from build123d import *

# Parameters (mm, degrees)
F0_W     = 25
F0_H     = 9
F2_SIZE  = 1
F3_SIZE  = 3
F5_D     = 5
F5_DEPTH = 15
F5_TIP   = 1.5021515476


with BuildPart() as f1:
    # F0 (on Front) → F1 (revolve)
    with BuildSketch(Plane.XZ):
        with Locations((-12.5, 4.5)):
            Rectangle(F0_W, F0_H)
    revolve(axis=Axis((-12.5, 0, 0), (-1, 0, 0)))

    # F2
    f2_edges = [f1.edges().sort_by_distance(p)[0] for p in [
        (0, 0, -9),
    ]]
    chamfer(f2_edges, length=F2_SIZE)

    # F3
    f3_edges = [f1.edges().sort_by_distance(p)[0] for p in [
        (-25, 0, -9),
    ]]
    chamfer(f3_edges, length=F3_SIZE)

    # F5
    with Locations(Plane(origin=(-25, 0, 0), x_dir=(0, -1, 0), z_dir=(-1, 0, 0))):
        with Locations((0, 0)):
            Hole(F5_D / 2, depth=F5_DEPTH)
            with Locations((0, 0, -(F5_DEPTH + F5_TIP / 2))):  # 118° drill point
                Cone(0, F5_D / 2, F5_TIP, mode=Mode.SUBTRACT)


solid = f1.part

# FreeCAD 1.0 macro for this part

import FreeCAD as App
import Part
import Sketcher
Q = App.Units.Quantity


def edges_at(feature, points):
    """Names of the edges that pass closest to the given points."""
    edges = feature.Shape.Edges
    near = lambda p: min(range(len(edges)), key=lambda i: edges[i].distToShape(Part.Vertex(*p))[0])
    return sorted({f"Edge{near(p) + 1}" for p in points})


def add_polygon(sketch, points):
    """Adds a closed chain of lines whose ends are joined by coincident constraints."""
    first, n = sketch.GeometryCount, len(points)
    for a, b in zip(points, points[1:] + points[:1]):
        sketch.addGeometry(Part.LineSegment(App.Vector(*a, 0), App.Vector(*b, 0)), False)
    for i in range(n):
        sketch.addConstraint(Sketcher.Constraint("Coincident", first + i, 2, first + (i + 1) % n, 1))

doc = App.newDocument("Part")
body = doc.addObject("PartDesign::Body", "Body")

# Sketch on XZ plane
sketch1 = doc.addObject("Sketcher::SketchObject", "Sketch")
body.addObject(sketch1)
sketch1.AttachmentSupport = (doc.XZ_Plane, [""])
sketch1.MapMode = "FlatFace"
add_polygon(sketch1, [(-25, 9), (-25, 0), (0, 0), (0, 9)])  # lines 0-3
sketch1.addConstraint([
    Sketcher.Constraint("Vertical", 0),
    Sketcher.Constraint("Horizontal", 1),
    Sketcher.Constraint("Vertical", 2),
    Sketcher.Constraint("Horizontal", 3),
    Sketcher.Constraint("Coincident", 1, 2, -1, 1),
    Sketcher.Constraint("DistanceX", 1, 1, 1, 2, Q("25 mm")),
    Sketcher.Constraint("DistanceY", 0, 2, 0, 1, Q("9 mm")),
])
revolution = doc.addObject("PartDesign::Revolution", "Revolution")
body.addObject(revolution)
revolution.Profile = sketch1
revolution.ReferenceAxis = (sketch1, ["H_Axis"])
revolution.Angle = 360
doc.recompute()

chamfer = doc.addObject("PartDesign::Chamfer", "Chamfer")
body.addObject(chamfer)
chamfer.Base = (revolution, edges_at(revolution, [(0, 0, -9)]))
chamfer.Size = 1
doc.recompute()

chamfer2 = doc.addObject("PartDesign::Chamfer", "Chamfer001")
body.addObject(chamfer2)
chamfer2.Base = (chamfer, edges_at(chamfer, [(-25, 0, -9)]))
chamfer2.Size = 3

# Sketch on YZ plane
sketch2 = doc.addObject("Sketcher::SketchObject", "Sketch001")
body.addObject(sketch2)
sketch2.AttachmentSupport = (doc.YZ_Plane, [""])
sketch2.MapMode = "FlatFace"
sketch2.AttachmentOffset = App.Placement(App.Vector(0, 0, -25), App.Rotation())
sketch2.addGeometry(Part.Circle(App.Vector(0, 0, 0), App.Vector(0, 0, 1), 2.5), False)
sketch2.addConstraint([
    Sketcher.Constraint("Coincident", 0, 3, -1, 1),
    Sketcher.Constraint("Diameter", 0, Q("5 mm")),
])
doc.recompute()
hole = doc.addObject("PartDesign::Hole", "Hole")
body.addObject(hole)
hole.Profile = sketch2
hole.ThreadType = "None"
hole.Diameter = 5
hole.DepthType = "Dimension"
hole.Depth = 15
hole.DrillPoint = "Angled"
hole.DrillPointAngle = 118
hole.Reversed = True

doc.recompute()
